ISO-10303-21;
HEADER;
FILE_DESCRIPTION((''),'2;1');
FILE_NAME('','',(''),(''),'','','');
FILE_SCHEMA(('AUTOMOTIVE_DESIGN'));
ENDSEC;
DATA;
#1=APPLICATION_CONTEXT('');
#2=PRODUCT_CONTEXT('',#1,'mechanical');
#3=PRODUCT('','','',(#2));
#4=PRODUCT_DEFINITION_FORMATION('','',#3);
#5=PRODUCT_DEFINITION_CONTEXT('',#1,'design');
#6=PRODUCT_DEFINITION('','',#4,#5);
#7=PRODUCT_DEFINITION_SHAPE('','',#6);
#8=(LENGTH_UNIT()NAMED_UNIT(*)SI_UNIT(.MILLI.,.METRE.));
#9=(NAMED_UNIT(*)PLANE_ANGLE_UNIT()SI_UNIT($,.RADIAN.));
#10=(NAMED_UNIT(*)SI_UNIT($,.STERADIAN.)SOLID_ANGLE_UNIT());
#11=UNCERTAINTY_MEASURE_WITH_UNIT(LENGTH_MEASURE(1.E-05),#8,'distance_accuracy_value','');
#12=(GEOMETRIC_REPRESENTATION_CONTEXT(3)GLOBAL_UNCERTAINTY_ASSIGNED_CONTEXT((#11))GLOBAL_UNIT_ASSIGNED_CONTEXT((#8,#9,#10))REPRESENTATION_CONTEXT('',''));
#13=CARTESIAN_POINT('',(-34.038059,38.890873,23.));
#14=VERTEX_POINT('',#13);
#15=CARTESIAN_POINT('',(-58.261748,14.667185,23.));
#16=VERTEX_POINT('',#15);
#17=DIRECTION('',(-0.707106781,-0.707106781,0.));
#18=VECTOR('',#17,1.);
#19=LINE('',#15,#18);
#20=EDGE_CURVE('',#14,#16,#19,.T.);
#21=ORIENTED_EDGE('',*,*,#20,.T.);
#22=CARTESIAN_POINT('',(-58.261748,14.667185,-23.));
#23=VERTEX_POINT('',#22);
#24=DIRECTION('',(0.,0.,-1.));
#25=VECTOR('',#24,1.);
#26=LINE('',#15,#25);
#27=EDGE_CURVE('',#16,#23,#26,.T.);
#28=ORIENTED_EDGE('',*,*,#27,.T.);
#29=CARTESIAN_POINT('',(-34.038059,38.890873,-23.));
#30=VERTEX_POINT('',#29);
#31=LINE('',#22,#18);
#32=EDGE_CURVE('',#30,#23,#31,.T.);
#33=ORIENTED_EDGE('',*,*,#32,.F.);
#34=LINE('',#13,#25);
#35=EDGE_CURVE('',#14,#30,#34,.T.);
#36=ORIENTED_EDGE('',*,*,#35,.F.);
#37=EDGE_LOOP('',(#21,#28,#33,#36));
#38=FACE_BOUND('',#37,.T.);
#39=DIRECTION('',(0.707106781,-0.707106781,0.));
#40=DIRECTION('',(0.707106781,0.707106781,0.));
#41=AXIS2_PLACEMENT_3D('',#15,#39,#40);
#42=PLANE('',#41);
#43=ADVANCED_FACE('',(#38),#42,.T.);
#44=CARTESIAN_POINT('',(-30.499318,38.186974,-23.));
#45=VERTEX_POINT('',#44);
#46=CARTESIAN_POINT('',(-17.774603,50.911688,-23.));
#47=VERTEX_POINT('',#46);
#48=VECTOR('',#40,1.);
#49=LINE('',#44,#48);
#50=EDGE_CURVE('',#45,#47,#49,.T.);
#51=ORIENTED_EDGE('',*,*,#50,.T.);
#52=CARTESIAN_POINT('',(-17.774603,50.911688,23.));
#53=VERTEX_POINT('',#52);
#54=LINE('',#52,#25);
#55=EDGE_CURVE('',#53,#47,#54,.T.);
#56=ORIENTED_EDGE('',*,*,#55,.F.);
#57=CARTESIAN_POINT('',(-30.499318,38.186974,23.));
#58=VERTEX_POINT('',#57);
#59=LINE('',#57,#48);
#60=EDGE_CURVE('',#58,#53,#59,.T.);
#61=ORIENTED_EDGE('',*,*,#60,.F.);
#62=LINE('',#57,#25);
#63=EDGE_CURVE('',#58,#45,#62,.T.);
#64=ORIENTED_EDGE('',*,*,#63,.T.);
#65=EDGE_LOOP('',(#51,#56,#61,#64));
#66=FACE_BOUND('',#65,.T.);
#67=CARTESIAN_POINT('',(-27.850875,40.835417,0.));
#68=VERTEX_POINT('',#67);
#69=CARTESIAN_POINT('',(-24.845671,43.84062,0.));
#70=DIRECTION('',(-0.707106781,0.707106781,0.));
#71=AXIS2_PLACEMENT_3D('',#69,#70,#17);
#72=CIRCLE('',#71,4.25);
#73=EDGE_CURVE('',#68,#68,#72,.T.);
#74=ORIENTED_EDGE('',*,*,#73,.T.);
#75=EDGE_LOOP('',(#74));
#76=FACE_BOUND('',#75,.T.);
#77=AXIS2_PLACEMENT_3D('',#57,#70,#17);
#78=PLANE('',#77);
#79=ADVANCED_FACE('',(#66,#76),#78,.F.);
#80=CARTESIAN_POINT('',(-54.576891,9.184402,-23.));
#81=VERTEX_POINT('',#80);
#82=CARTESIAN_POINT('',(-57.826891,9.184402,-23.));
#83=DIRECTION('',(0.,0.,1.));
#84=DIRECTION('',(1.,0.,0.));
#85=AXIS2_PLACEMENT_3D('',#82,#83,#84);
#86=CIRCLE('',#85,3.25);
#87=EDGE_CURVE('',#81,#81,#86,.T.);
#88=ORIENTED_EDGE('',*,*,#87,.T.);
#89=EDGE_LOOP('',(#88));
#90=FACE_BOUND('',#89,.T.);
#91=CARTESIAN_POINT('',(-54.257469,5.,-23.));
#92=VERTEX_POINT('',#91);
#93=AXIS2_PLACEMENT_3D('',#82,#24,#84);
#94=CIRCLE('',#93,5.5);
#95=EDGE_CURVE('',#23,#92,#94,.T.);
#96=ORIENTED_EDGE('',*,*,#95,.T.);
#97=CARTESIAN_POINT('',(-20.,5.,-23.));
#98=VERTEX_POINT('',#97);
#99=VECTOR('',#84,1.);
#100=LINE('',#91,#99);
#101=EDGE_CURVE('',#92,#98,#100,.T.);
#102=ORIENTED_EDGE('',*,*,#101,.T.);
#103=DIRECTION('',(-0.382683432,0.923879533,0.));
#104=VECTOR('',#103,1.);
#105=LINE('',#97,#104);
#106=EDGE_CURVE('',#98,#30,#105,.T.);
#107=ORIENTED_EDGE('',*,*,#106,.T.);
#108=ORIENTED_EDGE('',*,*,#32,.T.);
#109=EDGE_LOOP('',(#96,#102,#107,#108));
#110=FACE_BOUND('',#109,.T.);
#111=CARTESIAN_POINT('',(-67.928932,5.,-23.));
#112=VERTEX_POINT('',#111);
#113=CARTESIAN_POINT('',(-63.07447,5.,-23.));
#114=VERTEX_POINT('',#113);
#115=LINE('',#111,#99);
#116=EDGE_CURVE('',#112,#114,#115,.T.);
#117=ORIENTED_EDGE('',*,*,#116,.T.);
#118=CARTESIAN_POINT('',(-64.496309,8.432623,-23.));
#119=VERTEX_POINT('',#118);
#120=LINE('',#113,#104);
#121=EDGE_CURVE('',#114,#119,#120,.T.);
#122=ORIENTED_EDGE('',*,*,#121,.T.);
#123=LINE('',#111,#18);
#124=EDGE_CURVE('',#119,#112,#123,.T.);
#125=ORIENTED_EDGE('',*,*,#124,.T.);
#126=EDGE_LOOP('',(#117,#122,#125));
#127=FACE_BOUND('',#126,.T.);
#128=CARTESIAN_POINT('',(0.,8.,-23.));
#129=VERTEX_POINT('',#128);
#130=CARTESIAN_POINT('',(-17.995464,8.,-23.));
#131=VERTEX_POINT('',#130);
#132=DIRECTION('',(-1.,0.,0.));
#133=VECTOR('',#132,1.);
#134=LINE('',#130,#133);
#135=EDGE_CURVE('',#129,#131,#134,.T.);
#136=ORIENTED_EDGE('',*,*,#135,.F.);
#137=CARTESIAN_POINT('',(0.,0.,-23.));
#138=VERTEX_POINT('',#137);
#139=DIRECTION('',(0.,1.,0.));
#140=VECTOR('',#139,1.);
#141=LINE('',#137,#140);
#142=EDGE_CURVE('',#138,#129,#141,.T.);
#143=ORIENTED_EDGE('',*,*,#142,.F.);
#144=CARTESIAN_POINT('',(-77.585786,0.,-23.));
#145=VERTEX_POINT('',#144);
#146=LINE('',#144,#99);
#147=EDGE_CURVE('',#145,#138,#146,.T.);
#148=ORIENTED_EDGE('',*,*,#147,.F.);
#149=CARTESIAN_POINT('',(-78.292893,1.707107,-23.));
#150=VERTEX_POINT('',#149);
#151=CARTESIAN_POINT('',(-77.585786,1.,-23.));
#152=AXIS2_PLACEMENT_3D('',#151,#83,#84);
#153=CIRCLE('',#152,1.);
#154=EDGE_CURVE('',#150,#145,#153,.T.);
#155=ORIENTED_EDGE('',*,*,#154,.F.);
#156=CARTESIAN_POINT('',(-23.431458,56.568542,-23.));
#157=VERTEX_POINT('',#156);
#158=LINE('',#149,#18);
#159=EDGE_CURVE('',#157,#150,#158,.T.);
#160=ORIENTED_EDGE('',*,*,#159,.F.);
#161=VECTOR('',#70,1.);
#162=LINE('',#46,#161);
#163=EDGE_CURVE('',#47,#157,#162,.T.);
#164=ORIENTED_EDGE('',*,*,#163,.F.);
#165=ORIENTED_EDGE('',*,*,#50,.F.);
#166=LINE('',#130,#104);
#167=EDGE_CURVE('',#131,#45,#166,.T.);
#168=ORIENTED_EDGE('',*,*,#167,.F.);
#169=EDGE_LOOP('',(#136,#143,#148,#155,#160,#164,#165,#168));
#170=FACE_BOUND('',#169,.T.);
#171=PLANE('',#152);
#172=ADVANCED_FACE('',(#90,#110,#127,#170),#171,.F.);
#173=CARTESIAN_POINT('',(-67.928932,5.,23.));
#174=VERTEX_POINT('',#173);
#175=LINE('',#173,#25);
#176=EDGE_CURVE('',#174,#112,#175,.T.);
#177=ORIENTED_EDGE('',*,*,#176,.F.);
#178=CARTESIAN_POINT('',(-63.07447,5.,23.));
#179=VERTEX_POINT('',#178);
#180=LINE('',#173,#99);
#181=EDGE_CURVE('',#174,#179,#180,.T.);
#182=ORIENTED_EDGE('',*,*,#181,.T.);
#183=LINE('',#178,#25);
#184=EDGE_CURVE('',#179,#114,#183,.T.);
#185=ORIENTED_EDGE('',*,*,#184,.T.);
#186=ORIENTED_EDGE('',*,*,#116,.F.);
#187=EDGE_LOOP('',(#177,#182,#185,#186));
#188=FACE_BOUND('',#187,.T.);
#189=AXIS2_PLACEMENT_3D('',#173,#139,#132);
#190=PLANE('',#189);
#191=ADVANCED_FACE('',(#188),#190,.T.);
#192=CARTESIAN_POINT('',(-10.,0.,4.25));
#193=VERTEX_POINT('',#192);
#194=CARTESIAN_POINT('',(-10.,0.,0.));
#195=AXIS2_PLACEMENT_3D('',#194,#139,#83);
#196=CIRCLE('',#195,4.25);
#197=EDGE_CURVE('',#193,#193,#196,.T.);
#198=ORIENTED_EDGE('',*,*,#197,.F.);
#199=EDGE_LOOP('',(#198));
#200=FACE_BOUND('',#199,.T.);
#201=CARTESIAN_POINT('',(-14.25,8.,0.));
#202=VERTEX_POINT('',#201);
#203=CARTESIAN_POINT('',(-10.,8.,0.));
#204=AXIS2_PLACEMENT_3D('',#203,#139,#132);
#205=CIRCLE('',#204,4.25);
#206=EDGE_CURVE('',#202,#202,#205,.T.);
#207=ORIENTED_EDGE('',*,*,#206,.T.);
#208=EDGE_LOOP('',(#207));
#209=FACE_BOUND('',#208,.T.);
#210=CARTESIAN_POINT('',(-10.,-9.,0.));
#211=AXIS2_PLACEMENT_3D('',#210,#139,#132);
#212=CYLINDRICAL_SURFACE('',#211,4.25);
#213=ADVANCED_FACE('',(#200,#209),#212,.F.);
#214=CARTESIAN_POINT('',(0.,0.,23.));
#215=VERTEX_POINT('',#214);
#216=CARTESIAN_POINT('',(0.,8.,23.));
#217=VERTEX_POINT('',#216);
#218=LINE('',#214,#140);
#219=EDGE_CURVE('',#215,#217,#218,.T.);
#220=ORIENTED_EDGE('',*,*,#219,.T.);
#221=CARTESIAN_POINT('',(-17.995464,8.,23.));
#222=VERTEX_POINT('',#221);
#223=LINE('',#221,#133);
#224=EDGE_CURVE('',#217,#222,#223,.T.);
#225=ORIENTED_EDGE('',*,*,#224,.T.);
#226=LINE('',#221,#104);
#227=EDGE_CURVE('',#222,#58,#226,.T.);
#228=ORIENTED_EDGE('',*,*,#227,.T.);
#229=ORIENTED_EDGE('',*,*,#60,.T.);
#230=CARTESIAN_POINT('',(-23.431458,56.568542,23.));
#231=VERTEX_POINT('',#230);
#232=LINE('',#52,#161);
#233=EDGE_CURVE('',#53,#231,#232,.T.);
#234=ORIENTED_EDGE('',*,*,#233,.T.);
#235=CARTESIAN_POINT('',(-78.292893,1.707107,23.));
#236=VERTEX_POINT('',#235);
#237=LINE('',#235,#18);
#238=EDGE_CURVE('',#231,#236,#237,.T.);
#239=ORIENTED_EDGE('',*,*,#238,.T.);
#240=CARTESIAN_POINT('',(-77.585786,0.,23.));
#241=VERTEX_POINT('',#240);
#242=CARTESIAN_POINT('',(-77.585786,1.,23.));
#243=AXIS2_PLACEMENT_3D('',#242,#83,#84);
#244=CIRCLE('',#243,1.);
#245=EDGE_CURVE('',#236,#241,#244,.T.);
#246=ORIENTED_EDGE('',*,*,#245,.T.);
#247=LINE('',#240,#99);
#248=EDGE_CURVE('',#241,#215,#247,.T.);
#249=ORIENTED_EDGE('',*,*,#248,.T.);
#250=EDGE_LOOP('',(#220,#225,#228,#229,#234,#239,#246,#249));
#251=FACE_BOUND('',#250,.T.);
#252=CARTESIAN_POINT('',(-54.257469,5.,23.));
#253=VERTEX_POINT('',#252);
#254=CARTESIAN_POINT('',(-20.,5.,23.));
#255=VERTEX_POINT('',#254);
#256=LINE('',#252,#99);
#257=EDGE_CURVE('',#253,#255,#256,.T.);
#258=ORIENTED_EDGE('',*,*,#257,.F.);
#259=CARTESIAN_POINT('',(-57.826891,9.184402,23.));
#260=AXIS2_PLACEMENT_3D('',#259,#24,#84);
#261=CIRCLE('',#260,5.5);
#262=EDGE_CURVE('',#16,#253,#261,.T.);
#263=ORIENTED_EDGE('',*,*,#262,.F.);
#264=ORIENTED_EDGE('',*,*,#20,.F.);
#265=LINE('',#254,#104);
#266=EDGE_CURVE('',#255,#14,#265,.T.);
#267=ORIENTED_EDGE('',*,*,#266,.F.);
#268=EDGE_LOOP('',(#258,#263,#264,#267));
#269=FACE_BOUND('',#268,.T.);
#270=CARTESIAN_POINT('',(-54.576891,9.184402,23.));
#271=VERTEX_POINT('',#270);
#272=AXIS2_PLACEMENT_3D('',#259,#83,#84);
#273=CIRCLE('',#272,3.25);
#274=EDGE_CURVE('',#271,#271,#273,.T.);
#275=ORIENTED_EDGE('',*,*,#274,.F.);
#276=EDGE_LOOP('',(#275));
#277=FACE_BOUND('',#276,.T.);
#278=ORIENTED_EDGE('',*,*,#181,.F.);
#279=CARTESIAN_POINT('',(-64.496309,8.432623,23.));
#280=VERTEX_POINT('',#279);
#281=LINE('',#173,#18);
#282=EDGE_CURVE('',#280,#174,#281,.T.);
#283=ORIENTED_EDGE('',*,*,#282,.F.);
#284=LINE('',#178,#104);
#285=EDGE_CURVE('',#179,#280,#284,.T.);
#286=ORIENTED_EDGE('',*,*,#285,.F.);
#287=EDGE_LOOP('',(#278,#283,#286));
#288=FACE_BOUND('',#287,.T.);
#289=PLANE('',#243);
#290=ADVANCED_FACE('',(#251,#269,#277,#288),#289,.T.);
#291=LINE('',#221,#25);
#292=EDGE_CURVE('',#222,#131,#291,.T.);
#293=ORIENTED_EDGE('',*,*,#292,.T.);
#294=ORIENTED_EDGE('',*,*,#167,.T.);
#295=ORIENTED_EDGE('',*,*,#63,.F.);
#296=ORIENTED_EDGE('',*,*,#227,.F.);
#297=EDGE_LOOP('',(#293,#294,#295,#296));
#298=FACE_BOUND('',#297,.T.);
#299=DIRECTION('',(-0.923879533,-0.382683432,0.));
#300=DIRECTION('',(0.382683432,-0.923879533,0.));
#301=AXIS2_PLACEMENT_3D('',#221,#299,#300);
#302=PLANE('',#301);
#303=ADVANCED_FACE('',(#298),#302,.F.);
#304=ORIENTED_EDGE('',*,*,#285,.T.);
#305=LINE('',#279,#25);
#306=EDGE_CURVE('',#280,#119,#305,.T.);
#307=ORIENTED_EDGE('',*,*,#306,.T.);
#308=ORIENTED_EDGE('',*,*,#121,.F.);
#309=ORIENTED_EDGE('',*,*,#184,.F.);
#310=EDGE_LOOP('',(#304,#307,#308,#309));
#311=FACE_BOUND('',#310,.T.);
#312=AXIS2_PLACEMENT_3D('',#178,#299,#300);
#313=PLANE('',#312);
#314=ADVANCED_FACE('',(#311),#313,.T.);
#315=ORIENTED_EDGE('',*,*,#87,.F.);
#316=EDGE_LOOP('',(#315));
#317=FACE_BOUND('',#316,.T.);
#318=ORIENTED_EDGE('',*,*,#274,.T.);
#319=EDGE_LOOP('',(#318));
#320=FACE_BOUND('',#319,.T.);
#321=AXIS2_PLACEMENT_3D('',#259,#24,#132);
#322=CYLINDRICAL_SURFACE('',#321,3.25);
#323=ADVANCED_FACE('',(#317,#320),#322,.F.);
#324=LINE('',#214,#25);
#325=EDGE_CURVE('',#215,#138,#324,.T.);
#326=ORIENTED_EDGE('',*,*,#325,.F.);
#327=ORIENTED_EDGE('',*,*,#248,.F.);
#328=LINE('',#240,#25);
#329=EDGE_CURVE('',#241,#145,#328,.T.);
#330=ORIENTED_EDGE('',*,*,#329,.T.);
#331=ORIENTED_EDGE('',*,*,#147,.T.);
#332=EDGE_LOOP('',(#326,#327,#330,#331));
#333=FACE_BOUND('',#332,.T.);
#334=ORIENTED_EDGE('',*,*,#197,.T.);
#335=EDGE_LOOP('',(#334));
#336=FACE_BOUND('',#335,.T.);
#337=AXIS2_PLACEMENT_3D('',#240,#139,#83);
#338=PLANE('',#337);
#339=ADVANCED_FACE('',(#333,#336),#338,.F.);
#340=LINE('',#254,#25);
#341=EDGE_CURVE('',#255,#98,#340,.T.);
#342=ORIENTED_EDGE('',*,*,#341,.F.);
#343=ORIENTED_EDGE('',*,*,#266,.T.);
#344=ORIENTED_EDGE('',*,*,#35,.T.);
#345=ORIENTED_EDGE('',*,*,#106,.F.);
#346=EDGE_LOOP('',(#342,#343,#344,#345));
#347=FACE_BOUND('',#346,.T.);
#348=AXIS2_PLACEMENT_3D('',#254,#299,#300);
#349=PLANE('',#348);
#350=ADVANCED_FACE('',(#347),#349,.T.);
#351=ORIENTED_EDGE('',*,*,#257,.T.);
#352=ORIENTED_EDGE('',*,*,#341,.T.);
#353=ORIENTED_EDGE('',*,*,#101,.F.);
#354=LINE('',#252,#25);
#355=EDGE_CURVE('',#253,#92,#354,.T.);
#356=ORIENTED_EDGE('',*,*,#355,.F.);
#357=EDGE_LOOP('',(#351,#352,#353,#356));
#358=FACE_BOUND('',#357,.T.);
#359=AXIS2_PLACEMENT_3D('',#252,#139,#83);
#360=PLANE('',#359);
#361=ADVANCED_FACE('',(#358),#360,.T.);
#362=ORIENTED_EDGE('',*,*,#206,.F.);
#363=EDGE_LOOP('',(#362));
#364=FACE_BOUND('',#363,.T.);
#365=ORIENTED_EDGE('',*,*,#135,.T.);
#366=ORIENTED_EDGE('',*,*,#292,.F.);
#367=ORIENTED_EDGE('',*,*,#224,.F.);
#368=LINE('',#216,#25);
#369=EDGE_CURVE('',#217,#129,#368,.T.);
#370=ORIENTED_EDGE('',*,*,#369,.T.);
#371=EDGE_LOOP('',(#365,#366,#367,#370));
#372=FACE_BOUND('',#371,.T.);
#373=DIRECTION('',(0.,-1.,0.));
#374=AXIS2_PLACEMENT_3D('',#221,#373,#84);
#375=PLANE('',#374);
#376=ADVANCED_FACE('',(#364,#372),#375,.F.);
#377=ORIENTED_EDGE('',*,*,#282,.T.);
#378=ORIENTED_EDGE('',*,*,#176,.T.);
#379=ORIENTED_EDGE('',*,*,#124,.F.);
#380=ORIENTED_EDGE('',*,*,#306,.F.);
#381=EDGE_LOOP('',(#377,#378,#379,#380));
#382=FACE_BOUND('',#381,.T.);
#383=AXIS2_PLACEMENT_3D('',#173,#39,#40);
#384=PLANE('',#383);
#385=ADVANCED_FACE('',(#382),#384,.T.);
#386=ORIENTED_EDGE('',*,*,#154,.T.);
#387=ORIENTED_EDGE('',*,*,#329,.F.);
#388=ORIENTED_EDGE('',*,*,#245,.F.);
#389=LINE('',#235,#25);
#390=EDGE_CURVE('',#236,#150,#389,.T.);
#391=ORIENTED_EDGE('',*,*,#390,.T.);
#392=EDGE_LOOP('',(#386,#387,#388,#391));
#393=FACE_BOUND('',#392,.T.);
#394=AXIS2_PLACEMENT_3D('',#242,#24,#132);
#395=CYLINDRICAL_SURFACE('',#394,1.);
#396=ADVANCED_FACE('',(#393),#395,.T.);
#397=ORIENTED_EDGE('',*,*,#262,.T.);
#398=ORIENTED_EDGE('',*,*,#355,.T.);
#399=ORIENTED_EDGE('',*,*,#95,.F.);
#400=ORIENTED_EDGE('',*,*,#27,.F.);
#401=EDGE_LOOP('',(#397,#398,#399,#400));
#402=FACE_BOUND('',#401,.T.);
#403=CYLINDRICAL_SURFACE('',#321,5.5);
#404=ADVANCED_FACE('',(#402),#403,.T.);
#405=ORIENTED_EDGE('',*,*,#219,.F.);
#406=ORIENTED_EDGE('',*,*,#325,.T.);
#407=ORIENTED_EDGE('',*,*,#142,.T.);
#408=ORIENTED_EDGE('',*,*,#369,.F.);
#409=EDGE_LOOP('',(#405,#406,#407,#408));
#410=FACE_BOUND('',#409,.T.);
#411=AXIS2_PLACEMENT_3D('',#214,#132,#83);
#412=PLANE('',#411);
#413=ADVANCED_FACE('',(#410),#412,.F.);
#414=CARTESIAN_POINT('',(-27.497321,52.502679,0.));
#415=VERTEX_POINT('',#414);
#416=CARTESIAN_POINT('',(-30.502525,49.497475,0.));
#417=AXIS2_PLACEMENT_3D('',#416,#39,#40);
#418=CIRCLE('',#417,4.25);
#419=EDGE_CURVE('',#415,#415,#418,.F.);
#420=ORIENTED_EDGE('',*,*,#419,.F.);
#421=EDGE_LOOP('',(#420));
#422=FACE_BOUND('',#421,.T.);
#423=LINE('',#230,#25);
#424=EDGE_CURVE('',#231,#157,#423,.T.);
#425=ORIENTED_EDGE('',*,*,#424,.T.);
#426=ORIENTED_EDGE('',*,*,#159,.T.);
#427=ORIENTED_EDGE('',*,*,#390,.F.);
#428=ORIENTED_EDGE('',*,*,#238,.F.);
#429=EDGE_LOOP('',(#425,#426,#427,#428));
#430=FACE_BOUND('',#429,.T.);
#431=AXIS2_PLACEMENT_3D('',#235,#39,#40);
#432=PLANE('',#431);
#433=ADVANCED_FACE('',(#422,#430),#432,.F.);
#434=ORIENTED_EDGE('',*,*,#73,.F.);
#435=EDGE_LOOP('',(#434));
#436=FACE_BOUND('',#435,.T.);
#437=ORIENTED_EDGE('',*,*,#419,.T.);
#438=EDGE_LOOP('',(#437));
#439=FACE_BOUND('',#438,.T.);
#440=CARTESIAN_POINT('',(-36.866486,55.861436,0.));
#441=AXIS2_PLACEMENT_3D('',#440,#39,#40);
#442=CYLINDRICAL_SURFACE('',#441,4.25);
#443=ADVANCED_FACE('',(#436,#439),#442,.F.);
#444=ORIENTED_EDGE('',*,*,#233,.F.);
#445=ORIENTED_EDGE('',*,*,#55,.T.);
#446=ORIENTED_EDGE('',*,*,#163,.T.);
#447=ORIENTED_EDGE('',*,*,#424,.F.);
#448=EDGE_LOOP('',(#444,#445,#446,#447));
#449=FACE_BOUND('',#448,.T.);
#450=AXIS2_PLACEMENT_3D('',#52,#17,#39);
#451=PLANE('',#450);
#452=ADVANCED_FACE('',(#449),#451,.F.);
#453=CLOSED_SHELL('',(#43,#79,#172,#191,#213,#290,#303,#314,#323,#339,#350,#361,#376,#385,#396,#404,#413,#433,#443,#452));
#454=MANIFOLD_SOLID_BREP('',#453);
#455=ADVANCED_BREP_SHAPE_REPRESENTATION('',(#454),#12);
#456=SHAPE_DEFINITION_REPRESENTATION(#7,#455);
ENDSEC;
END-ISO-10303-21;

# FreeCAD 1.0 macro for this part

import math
import FreeCAD as App
import Part
import Sketcher
Q = App.Units.Quantity

doc = App.newDocument("Part")
body = doc.addObject("PartDesign::Body", "Body")

# Sketch on XY plane
sketch1 = doc.addObject("Sketcher::SketchObject", "Sketch")
body.addObject(sketch1)
sketch1.AttachmentSupport = (doc.XY_Plane, [""])
sketch1.MapMode = "FlatFace"
sketch1.addGeometry([
    Part.LineSegment(App.Vector(-77.585786, 0, 0), App.Vector(0, 0, 0)),  # 0
    Part.LineSegment(App.Vector(0, 0, 0), App.Vector(0, 8, 0)),  # 1
    Part.LineSegment(App.Vector(0, 8, 0), App.Vector(-17.995464, 8, 0)),  # 2
    Part.LineSegment(App.Vector(-17.995464, 8, 0), App.Vector(-30.499318, 38.186974, 0)),  # 3
    Part.LineSegment(App.Vector(-30.499318, 38.186974, 0), App.Vector(-17.774603, 50.911688, 0)),  # 4
    Part.LineSegment(App.Vector(-17.774603, 50.911688, 0), App.Vector(-23.431458, 56.568542, 0)),  # 5
    Part.LineSegment(App.Vector(-23.431458, 56.568542, 0), App.Vector(-78.292893, 1.707107, 0)),  # 6
    Part.ArcOfCircle(Part.Circle(App.Vector(-77.585786, 1, 0), App.Vector(0, 0, 1), 1), math.radians(135), math.radians(270)),  # 7
    Part.LineSegment(App.Vector(-63.07447, 5, 0), App.Vector(-67.928932, 5, 0)),  # 8
    Part.LineSegment(App.Vector(-67.928932, 5, 0), App.Vector(-64.496309, 8.432623, 0)),  # 9
    Part.LineSegment(App.Vector(-64.496309, 8.432623, 0), App.Vector(-63.07447, 5, 0)),  # 10
    Part.Circle(App.Vector(-57.826891, 9.184402, 0), App.Vector(0, 0, 1), 3.25),  # 11
    Part.LineSegment(App.Vector(-20, 5, 0), App.Vector(-54.257469, 5, 0)),  # 12
    Part.ArcOfCircle(Part.Circle(App.Vector(-57.826891, 9.184402, 0), App.Vector(0, 0, 1), 5.5), math.radians(-49.534813), math.radians(94.534813)),  # 13
    Part.LineSegment(App.Vector(-58.261748, 14.667185, 0), App.Vector(-34.038059, 38.890873, 0)),  # 14
    Part.LineSegment(App.Vector(-34.038059, 38.890873, 0), App.Vector(-20, 5, 0)),  # 15
], False)
sketch1.addConstraint([
    Sketcher.Constraint("Coincident", 0, 2, 1, 1),
    Sketcher.Constraint("Coincident", 1, 2, 2, 1),
    Sketcher.Constraint("Coincident", 2, 2, 3, 1),
    Sketcher.Constraint("Coincident", 3, 2, 4, 1),
    Sketcher.Constraint("Coincident", 4, 2, 5, 1),
    Sketcher.Constraint("Coincident", 5, 2, 6, 1),
    Sketcher.Constraint("Tangent", 6, 2, 7, 1),
    Sketcher.Constraint("Tangent", 7, 2, 0, 1),
    Sketcher.Constraint("Coincident", 8, 2, 9, 1),
    Sketcher.Constraint("Coincident", 9, 2, 10, 1),
    Sketcher.Constraint("Coincident", 10, 2, 8, 1),
    Sketcher.Constraint("Coincident", 12, 2, 13, 1),
    Sketcher.Constraint("Coincident", 13, 2, 14, 1),
    Sketcher.Constraint("Coincident", 14, 2, 15, 1),
    Sketcher.Constraint("Coincident", 15, 2, 12, 1),
    Sketcher.Constraint("Horizontal", 0),
    Sketcher.Constraint("Vertical", 1),
    Sketcher.Constraint("Horizontal", 2),
    Sketcher.Constraint("Horizontal", 8),
    Sketcher.Constraint("Horizontal", 12),
    Sketcher.Constraint("Coincident", 0, 2, -1, 1),
    Sketcher.Constraint("Coincident", 13, 3, 11, 3),
    Sketcher.Constraint("Perpendicular", 4, 5),
    Sketcher.Constraint("Perpendicular", 5, 6),
    Sketcher.Constraint("Parallel", 6, 9),
    Sketcher.Constraint("Parallel", 3, 10),
    Sketcher.Constraint("Parallel", 9, 14),
    Sketcher.Constraint("Parallel", 10, 15),
    Sketcher.Constraint("Horizontal", 10, 2, 12, 2),
    Sketcher.Constraint("Radius", 7, 1.0),
    Sketcher.Constraint("Diameter", 11, 6.5),
    Sketcher.Constraint("Radius", 13, 5.5),
    Sketcher.Constraint("DistanceY", 1, 1, 1, 2, 8.0),
    Sketcher.Constraint("Angle", 4, Q("45 deg")),
    Sketcher.Constraint("Distance", 5, 8.0),
    Sketcher.Constraint("DistanceY", -1, 1, 8, 2, 5.0),
    Sketcher.Constraint("DistanceX", 15, 2, -1, 1, 20.0),
    Sketcher.Constraint("Angle", 3, Q("112.5 deg")),
    Sketcher.Constraint("DistanceX", 6, 2, 11, 3, 20.466002),
    Sketcher.Constraint("DistanceX", 10, 2, 12, 2, 8.817002),
    Sketcher.Constraint("DistanceX", 8, 2, 8, 1, 4.854462),
    Sketcher.Constraint("DistanceX", 12, 2, 12, 1, 34.257469),
    Sketcher.Constraint("DistanceY", 3, 2, 14, 2, 0.703899),
    Sketcher.Constraint("DistanceX", 14, 2, 5, 2, 10.606602),
    Sketcher.Constraint("Distance", 14, 34.257469),
    Sketcher.Constraint("DistanceX", 0, 1, 0, 2, 77.585786),
])
pad1 = doc.addObject("PartDesign::Pad", "Pad")
body.addObject(pad1)
pad1.Profile = sketch1
pad1.Length = 46
pad1.Midplane = True

# Sketch on XZ plane
sketch2 = doc.addObject("Sketcher::SketchObject", "Sketch001")
body.addObject(sketch2)
sketch2.AttachmentSupport = (doc.XZ_Plane, [""])
sketch2.MapMode = "FlatFace"
sketch2.AttachmentOffset = App.Placement(App.Vector(0, 0, -8), App.Rotation())
sketch2.addGeometry(Part.Circle(App.Vector(-10, 0, 0), App.Vector(0, 0, 1), 4.25), False)
sketch2.addConstraint([
    Sketcher.Constraint("PointOnObject", 0, 3, -1),
    Sketcher.Constraint("Diameter", 0, 8.5),
    Sketcher.Constraint("DistanceX", 0, 3, -1, 1, 10.0),
])
pocket1 = doc.addObject("PartDesign::Pocket", "Pocket")
body.addObject(pocket1)
pocket1.Profile = sketch2
pocket1.Length = 17
pocket1.Reversed = True
doc.recompute()

datumplane = doc.addObject("PartDesign::Plane", "DatumPlane")
body.addObject(datumplane)
datumplane.Placement = App.Placement(App.Vector(-11.715729, 28.284271, 0), App.Rotation(App.Vector(0.923879533, 0.382683432, 0), App.Vector(0, 0, -1), App.Vector(-0.382683432, 0.923879533, 0), "ZXY"))
mirrored = doc.addObject("PartDesign::Mirrored", "Mirrored")
body.addObject(mirrored)
mirrored.Originals = [pocket1]
mirrored.MirrorPlane = (datumplane, [""])
body.Tip = mirrored

doc.recompute()
